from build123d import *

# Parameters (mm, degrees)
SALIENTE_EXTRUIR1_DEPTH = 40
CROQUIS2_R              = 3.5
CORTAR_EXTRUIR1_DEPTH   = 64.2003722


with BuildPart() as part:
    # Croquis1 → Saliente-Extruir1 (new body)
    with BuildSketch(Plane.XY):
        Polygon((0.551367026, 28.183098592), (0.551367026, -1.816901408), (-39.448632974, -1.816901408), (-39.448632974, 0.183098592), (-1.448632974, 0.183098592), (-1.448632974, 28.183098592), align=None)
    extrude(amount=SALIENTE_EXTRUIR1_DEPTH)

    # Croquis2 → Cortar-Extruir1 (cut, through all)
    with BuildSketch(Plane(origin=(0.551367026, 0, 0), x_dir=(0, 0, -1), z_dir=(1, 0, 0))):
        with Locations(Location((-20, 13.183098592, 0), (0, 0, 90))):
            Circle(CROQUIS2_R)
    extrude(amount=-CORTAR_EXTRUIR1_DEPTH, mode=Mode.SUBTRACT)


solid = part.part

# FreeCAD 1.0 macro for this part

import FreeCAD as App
import Part
import Sketcher

V = App.Vector

doc = App.newDocument("Part")
body = doc.addObject("PartDesign::Body", "Body")

# Sketch on XY plane
sketch1 = body.newObject("Sketcher::SketchObject", "Sketch")
sketch1.AttachmentSupport = (doc.getObject("XY_Plane"), [""])
sketch1.MapMode = "FlatFace"
sketch1.addGeometry([
    Part.LineSegment(V(0.6, -1.8, 0), V(0.6, 28.2, 0)),  # 0
    Part.LineSegment(V(0.6, 28.2, 0), V(-1.4, 28.2, 0)),  # 1
    Part.LineSegment(V(-1.4, 28.2, 0), V(-1.4, 0.2, 0)),  # 2
    Part.LineSegment(V(-1.4, 0.2, 0), V(-39.4, 0.2, 0)),  # 3
    Part.LineSegment(V(-39.4, 0.2, 0), V(-39.4, -1.8, 0)),  # 4
    Part.LineSegment(V(-39.4, -1.8, 0), V(0.6, -1.8, 0)),  # 5
], False)
sketch1.addConstraint([
    Sketcher.Constraint("Coincident", 0, 2, 1, 1),
    Sketcher.Constraint("Coincident", 1, 2, 2, 1),
    Sketcher.Constraint("Coincident", 2, 2, 3, 1),
    Sketcher.Constraint("Coincident", 3, 2, 4, 1),
    Sketcher.Constraint("Coincident", 4, 2, 5, 1),
    Sketcher.Constraint("Coincident", 5, 2, 0, 1),
    Sketcher.Constraint("Vertical", 0),
    Sketcher.Constraint("Horizontal", 1),
    Sketcher.Constraint("Vertical", 2),
    Sketcher.Constraint("Horizontal", 3),
    Sketcher.Constraint("Vertical", 4),
    Sketcher.Constraint("Horizontal", 5),
    Sketcher.Constraint("Equal", 1, 4),
    Sketcher.Constraint("DistanceX", 1, 2, 1, 1, 2.0),
    Sketcher.Constraint("DistanceX", 3, 2, 3, 1, 38.0),
    Sketcher.Constraint("DistanceY", 0, 1, 0, 2, 30.0),
    Sketcher.Constraint("DistanceY", -1, 1, 0, 2, 28.183099),
    Sketcher.Constraint("DistanceX", -1, 1, 0, 2, 0.551367),
])
pad1 = body.newObject("PartDesign::Pad", "Pad")
pad1.Profile = sketch1
pad1.Length = 40

# Sketch on YZ plane
sketch2 = body.newObject("Sketcher::SketchObject", "Sketch001")
sketch2.AttachmentSupport = (doc.getObject("YZ_Plane"), [""])
sketch2.MapMode = "FlatFace"
sketch2.AttachmentOffset = App.Placement(V(0, 0, 0.551367), App.Rotation())
sketch2.addGeometry(Part.Circle(V(13.2, 20, 0), V(0, 0, 1), 3.5), False)
sketch2.addConstraint([
    Sketcher.Constraint("Diameter", 0, 7.0),
    Sketcher.Constraint("DistanceY", -1, 1, 0, 3, 20.0),
    Sketcher.Constraint("DistanceX", -1, 1, 0, 3, 13.183099),
])
pocket1 = body.newObject("PartDesign::Pocket", "Pocket")
pocket1.Profile = sketch2
pocket1.Type = "ThroughAll"

doc.recompute()
